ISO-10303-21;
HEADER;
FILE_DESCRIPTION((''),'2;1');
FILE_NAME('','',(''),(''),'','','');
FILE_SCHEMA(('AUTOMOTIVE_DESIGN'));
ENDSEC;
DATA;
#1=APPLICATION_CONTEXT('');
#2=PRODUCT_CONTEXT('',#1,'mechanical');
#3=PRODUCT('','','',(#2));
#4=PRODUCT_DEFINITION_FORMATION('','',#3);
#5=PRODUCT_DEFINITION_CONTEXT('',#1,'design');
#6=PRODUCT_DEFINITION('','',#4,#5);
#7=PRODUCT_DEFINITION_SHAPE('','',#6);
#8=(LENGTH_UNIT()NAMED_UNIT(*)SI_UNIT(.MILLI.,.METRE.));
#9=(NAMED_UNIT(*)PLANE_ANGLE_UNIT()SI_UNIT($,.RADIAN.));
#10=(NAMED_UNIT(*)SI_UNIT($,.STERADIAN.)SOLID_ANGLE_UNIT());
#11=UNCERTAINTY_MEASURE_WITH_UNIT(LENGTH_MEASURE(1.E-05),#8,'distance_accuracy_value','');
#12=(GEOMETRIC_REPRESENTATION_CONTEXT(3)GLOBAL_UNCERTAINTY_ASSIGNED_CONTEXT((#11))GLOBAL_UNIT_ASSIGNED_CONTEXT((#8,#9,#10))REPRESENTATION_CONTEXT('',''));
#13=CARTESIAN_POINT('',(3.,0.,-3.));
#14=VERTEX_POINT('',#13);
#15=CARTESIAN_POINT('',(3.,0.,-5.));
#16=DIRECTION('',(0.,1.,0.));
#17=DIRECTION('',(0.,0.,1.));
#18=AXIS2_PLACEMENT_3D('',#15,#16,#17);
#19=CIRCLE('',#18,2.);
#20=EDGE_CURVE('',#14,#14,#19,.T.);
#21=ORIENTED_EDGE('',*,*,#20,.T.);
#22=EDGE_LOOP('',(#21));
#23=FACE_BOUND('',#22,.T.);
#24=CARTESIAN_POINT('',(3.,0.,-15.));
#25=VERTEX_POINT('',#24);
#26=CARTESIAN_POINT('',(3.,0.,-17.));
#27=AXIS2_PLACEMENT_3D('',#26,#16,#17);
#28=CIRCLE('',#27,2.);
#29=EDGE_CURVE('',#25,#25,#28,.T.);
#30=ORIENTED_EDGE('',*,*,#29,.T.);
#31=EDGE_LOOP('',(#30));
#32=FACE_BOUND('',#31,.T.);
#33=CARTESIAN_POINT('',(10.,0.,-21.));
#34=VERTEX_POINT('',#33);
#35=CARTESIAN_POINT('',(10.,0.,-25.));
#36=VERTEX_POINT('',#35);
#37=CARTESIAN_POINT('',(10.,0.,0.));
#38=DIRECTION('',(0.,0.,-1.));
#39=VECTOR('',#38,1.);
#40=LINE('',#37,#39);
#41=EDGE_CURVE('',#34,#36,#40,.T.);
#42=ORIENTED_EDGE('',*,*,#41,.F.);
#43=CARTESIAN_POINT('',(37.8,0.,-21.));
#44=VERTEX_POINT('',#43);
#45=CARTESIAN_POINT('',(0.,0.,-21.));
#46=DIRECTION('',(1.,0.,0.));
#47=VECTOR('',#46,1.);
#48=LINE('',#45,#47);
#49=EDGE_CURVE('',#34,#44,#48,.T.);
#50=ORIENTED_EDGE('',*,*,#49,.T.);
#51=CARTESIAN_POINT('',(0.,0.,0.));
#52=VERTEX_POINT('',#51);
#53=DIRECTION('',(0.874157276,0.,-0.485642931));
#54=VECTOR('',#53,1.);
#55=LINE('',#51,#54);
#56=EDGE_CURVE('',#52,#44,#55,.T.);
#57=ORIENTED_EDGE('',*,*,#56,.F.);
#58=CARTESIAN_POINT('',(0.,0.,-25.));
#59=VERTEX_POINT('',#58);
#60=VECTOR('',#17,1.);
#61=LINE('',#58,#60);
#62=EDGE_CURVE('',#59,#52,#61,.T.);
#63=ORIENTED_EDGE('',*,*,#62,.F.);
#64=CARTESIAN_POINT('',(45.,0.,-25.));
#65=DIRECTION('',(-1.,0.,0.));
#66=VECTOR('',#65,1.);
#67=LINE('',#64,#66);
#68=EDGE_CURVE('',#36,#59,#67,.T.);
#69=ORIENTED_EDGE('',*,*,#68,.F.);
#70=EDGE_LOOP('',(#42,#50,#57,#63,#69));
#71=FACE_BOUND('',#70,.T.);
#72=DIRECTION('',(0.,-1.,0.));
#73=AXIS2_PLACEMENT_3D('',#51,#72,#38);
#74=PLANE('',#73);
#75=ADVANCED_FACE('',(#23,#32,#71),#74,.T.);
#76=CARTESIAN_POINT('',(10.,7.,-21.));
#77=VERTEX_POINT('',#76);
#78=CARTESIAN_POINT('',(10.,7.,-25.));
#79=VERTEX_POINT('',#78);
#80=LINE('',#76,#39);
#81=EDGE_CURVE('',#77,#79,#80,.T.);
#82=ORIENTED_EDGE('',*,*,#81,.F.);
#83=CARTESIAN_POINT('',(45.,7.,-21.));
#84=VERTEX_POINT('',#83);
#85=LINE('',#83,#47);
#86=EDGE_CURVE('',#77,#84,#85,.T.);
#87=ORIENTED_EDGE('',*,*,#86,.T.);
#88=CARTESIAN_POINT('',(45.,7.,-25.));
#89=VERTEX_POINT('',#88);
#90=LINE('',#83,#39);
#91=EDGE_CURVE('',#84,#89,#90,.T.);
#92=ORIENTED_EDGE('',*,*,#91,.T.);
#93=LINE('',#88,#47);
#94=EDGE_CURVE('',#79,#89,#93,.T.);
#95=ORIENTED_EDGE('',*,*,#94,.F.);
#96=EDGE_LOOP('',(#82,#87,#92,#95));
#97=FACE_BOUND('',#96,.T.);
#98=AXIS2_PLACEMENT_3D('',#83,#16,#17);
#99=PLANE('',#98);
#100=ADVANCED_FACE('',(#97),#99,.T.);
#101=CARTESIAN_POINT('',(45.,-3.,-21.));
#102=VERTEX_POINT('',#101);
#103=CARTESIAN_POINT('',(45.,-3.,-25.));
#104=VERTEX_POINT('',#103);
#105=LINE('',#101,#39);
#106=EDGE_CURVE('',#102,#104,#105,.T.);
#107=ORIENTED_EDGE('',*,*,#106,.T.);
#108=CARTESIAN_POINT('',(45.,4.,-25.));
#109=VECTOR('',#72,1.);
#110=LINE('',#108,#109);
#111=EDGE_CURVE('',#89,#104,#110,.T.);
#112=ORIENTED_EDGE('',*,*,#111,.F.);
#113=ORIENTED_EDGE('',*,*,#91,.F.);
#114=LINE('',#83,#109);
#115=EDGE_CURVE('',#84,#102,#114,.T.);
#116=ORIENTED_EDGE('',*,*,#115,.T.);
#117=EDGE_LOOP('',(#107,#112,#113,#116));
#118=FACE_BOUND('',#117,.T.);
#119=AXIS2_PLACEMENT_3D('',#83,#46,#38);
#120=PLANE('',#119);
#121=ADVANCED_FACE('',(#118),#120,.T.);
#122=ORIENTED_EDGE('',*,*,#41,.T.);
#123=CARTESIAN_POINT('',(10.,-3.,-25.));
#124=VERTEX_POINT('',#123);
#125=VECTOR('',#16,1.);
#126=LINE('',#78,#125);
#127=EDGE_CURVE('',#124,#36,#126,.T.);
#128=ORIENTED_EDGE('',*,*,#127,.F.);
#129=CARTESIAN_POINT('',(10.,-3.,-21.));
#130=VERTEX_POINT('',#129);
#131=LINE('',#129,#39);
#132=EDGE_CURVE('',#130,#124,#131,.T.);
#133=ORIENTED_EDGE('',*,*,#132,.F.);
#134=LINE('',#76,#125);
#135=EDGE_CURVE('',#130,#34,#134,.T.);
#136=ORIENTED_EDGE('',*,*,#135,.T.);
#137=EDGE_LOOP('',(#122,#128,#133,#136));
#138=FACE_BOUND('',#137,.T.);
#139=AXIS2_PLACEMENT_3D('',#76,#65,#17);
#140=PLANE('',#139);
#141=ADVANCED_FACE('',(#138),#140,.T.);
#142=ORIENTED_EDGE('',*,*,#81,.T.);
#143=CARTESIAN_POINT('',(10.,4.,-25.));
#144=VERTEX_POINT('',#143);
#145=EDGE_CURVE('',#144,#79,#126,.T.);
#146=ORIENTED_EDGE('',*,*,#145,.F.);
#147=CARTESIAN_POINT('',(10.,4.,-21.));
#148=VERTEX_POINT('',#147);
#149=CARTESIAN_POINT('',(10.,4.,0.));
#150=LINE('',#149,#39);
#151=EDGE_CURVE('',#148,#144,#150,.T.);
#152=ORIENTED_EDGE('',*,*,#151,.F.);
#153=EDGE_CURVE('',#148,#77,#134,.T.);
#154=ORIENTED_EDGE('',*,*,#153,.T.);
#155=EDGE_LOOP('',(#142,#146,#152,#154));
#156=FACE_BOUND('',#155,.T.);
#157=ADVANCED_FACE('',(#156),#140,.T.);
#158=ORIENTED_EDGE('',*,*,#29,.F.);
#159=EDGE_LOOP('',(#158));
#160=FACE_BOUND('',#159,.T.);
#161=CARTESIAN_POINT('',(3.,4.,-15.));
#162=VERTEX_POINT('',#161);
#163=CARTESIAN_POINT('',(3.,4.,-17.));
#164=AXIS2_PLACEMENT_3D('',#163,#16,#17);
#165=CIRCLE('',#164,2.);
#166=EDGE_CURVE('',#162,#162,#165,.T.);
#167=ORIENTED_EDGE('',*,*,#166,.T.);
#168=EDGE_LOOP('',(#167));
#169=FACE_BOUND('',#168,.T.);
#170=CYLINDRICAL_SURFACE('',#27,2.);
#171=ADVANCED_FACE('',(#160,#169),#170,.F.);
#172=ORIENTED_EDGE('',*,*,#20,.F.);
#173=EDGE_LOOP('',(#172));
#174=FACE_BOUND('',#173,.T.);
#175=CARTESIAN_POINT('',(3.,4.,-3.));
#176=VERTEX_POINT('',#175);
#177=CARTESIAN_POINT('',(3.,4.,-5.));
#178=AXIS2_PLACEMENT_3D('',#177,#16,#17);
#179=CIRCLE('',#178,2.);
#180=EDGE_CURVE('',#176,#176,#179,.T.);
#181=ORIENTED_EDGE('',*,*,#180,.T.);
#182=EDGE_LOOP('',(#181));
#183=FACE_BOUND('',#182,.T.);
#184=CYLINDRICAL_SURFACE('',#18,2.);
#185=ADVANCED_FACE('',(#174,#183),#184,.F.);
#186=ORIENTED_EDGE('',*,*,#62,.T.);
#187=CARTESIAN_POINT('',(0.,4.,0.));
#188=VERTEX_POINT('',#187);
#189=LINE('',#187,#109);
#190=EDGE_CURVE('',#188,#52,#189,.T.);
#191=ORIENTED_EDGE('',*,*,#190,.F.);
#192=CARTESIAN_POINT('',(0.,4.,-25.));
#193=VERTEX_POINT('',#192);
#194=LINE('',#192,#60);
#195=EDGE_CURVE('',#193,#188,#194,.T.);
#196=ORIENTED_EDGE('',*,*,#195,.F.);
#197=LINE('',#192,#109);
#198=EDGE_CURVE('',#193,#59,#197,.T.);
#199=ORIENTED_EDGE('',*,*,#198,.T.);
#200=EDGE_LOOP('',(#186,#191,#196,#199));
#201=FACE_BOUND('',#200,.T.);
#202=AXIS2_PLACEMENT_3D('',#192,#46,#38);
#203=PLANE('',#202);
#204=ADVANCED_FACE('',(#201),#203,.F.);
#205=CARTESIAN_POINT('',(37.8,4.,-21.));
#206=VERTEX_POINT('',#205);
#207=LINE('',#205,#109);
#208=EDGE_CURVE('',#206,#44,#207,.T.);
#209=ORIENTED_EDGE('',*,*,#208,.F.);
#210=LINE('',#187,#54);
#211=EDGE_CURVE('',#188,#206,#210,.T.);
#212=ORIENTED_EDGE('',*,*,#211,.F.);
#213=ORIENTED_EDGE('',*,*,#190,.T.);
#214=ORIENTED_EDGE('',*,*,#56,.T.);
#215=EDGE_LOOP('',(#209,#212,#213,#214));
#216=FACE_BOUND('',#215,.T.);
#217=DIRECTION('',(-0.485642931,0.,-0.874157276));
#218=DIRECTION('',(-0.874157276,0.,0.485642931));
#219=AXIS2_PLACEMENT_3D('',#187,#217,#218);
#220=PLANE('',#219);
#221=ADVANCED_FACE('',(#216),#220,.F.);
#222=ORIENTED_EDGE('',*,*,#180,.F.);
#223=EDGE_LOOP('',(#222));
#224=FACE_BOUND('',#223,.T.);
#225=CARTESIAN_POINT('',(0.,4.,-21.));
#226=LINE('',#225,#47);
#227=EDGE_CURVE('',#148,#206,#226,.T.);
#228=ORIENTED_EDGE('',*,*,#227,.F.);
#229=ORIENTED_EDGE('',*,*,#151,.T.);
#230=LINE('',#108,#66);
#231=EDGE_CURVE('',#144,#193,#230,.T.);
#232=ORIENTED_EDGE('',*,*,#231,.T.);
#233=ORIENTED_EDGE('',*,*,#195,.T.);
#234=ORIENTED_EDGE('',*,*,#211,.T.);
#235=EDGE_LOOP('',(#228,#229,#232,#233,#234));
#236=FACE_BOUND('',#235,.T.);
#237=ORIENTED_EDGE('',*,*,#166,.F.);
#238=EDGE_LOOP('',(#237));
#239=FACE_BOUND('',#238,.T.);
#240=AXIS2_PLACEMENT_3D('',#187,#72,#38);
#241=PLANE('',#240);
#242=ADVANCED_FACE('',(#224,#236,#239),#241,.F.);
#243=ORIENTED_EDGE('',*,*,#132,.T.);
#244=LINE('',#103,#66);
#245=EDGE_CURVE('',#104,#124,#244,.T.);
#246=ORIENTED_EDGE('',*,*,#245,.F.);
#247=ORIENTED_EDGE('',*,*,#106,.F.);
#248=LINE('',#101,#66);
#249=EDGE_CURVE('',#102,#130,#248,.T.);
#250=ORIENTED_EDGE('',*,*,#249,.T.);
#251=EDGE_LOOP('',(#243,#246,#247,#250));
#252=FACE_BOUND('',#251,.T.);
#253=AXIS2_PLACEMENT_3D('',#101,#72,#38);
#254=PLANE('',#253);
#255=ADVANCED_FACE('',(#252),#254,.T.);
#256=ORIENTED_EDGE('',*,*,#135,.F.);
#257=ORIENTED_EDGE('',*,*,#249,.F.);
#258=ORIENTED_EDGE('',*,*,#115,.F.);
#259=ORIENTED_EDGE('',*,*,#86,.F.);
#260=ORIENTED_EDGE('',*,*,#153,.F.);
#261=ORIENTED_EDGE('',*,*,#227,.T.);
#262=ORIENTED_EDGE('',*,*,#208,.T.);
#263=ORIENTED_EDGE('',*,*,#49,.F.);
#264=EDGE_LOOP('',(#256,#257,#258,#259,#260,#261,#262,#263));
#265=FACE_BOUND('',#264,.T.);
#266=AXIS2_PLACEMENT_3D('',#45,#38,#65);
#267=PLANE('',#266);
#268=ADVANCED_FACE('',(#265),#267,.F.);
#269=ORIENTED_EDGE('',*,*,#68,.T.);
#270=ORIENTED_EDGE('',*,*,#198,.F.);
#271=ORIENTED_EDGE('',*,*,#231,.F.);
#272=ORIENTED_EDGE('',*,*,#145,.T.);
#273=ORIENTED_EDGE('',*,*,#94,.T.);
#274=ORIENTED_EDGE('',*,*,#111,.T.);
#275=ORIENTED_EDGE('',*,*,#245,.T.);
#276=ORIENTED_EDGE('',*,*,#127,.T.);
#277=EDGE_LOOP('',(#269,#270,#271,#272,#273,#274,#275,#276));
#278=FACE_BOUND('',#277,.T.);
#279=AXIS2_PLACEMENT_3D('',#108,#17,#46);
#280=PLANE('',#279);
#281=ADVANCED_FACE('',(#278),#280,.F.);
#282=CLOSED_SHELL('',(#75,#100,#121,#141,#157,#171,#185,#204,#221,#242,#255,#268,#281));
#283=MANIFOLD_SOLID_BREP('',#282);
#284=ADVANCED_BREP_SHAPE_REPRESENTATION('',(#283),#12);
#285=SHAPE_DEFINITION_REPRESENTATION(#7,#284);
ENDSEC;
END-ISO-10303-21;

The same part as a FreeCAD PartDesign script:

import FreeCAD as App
import Part
import Sketcher

V = App.Vector
Q = App.Units.Quantity


def add_polygon(sketch, points):
    """Adds a closed chain of lines whose ends are joined by coincident constraints."""
    first, n = sketch.GeometryCount, len(points)
    for a, b in zip(points, points[1:] + points[:1]):
        sketch.addGeometry(Part.LineSegment(App.Vector(*a, 0), App.Vector(*b, 0)), False)
    for i in range(n):
        sketch.addConstraint(Sketcher.Constraint("Coincident", first + i, 2, first + (i + 1) % n, 1))

doc = App.newDocument("Part")
body = doc.addObject("PartDesign::Body", "Body")

sketch1 = body.newObject("Sketcher::SketchObject", "Sketch")
sketch1.AttachmentSupport = (doc.getObject("XZ_Plane"), [""])
sketch1.MapMode = "FlatFace"
add_polygon(sketch1, [(0, 0), (45, -25), (0, -25)])
sketch1.addConstraint([
    Sketcher.Constraint("Horizontal", 1),
    Sketcher.Constraint("Vertical", 2),
    Sketcher.Constraint("Coincident", 2, 2, -1, 1),
    Sketcher.Constraint("DistanceX", 1, 2, 1, 1, Q("45 mm")),
    Sketcher.Constraint("DistanceY", 2, 1, 2, 2, Q("25 mm")),
])
pad1 = body.newObject("PartDesign::Pad", "Pad")
pad1.Profile = sketch1
pad1.Length = 4
pad1.Reversed = True

sketch2 = body.newObject("Sketcher::SketchObject", "Sketch001")
sketch2.AttachmentSupport = (doc.getObject("XZ_Plane"), [""])
sketch2.MapMode = "FlatFace"
sketch2.AttachmentOffset = App.Placement(V(0, 0, -4), App.Rotation())
sketch2.addGeometry([
    Part.Circle(V(3, -17, 0), V(0, 0, 1), 2),
    Part.Circle(V(3, -5, 0), V(0, 0, 1), 2),
], False)
sketch2.addConstraint([
    Sketcher.Constraint("Equal", 0, 1),
    Sketcher.Constraint("Vertical", 0, 3, 1, 3),
    Sketcher.Constraint("Diameter", 0, Q("4 mm")),
    Sketcher.Constraint("DistanceX", -1, 1, 0, 3, Q("3 mm")),
    Sketcher.Constraint("DistanceY", 0, 3, -1, 1, Q("17 mm")),
    Sketcher.Constraint("DistanceY", 1, 3, -1, 1, Q("5 mm")),
])
pocket1 = body.newObject("PartDesign::Pocket", "Pocket")
pocket1.Profile = sketch2
pocket1.Length = 4
pocket1.Reversed = True

sketch3 = body.newObject("Sketcher::SketchObject", "Sketch002")
sketch3.AttachmentSupport = (doc.getObject("XY_Plane"), [""])
sketch3.MapMode = "FlatFace"
sketch3.AttachmentOffset = App.Placement(V(0, 0, -25), App.Rotation())
add_polygon(sketch3, [(45, 7), (45, -3), (10, -3), (10, 7)])
sketch3.addConstraint([
    Sketcher.Constraint("Vertical", 0),
    Sketcher.Constraint("Horizontal", 1),
    Sketcher.Constraint("Vertical", 2),
    Sketcher.Constraint("Horizontal", 3),
    Sketcher.Constraint("DistanceX", 1, 2, 1, 1, Q("35 mm")),
    Sketcher.Constraint("DistanceY", 0, 2, 0, 1, Q("10 mm")),
    Sketcher.Constraint("DistanceX", -1, 1, 0, 2, Q("45 mm")),
    Sketcher.Constraint("DistanceY", 0, 2, -1, 1, Q("3 mm")),
])
pad2 = body.newObject("PartDesign::Pad", "Pad001")
pad2.Profile = sketch3
pad2.Length = 4

doc.recompute()
